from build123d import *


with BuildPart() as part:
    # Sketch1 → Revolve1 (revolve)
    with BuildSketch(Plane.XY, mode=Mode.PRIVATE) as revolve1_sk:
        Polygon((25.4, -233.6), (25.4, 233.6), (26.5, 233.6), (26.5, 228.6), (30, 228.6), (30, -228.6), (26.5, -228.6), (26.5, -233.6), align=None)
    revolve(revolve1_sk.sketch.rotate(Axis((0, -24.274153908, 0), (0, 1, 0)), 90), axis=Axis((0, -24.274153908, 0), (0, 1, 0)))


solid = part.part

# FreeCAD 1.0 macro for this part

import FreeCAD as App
import Part
import Sketcher

V = App.Vector
Q = App.Units.Quantity


def add_polygon(sketch, points):
    """Adds a closed chain of lines whose ends are joined by coincident constraints."""
    first, n = sketch.GeometryCount, len(points)
    for a, b in zip(points, points[1:] + points[:1]):
        sketch.addGeometry(Part.LineSegment(App.Vector(*a, 0), App.Vector(*b, 0)), False)
    for i in range(n):
        sketch.addConstraint(Sketcher.Constraint("Coincident", first + i, 2, first + (i + 1) % n, 1))

doc = App.newDocument("Part")
body = doc.addObject("PartDesign::Body", "Body")

# Sketch on XY plane
sketch1 = doc.addObject("Sketcher::SketchObject", "Sketch")
body.addObject(sketch1)
sketch1.AttachmentSupport = (doc.XY_Plane, [""])
sketch1.MapMode = "FlatFace"
add_polygon(sketch1, [(25.4, 233.6), (25.4, -233.6), (26.5, -233.6), (26.5, -228.6), (30, -228.6), (30, 228.6), (26.5, 228.6), (26.5, 233.6)])  # lines 0-7
sketch1.addConstraint(Sketcher.Constraint("Vertical", 0))
sketch1.addConstraint(Sketcher.Constraint("Horizontal", 1))
sketch1.addConstraint(Sketcher.Constraint("Vertical", 2))
sketch1.addConstraint(Sketcher.Constraint("Horizontal", 3))
sketch1.addConstraint(Sketcher.Constraint("Vertical", 4))
sketch1.addConstraint(Sketcher.Constraint("Horizontal", 5))
sketch1.addConstraint(Sketcher.Constraint("Vertical", 6))
sketch1.addConstraint(Sketcher.Constraint("Horizontal", 7))
sketch1.addConstraint(Sketcher.Constraint("Symmetric", 2, 2, 5, 2, -1))
sketch1.addConstraint(Sketcher.Constraint("Equal", 2, 6))
sketch1.addConstraint(Sketcher.Constraint("DistanceY", 2, 1, 2, 2, Q("5 mm")))
sketch1.addConstraint(Sketcher.Constraint("DistanceX", 1, 1, 1, 2, Q("1.1 mm")))
sketch1.addConstraint(Sketcher.Constraint("DistanceX", 3, 1, 3, 2, Q("3.5 mm")))
sketch1.addConstraint(Sketcher.Constraint("DistanceY", 0, 2, 0, 1, Q("467.2 mm")))
sketch1.addConstraint(Sketcher.Constraint("DistanceX", -1, 1, 3, 2, Q("30 mm")))
revolution = doc.addObject("PartDesign::Revolution", "Revolution")
body.addObject(revolution)
revolution.Profile = sketch1
revolution.ReferenceAxis = (sketch1, ["V_Axis"])
revolution.Angle = 360

doc.recompute()
